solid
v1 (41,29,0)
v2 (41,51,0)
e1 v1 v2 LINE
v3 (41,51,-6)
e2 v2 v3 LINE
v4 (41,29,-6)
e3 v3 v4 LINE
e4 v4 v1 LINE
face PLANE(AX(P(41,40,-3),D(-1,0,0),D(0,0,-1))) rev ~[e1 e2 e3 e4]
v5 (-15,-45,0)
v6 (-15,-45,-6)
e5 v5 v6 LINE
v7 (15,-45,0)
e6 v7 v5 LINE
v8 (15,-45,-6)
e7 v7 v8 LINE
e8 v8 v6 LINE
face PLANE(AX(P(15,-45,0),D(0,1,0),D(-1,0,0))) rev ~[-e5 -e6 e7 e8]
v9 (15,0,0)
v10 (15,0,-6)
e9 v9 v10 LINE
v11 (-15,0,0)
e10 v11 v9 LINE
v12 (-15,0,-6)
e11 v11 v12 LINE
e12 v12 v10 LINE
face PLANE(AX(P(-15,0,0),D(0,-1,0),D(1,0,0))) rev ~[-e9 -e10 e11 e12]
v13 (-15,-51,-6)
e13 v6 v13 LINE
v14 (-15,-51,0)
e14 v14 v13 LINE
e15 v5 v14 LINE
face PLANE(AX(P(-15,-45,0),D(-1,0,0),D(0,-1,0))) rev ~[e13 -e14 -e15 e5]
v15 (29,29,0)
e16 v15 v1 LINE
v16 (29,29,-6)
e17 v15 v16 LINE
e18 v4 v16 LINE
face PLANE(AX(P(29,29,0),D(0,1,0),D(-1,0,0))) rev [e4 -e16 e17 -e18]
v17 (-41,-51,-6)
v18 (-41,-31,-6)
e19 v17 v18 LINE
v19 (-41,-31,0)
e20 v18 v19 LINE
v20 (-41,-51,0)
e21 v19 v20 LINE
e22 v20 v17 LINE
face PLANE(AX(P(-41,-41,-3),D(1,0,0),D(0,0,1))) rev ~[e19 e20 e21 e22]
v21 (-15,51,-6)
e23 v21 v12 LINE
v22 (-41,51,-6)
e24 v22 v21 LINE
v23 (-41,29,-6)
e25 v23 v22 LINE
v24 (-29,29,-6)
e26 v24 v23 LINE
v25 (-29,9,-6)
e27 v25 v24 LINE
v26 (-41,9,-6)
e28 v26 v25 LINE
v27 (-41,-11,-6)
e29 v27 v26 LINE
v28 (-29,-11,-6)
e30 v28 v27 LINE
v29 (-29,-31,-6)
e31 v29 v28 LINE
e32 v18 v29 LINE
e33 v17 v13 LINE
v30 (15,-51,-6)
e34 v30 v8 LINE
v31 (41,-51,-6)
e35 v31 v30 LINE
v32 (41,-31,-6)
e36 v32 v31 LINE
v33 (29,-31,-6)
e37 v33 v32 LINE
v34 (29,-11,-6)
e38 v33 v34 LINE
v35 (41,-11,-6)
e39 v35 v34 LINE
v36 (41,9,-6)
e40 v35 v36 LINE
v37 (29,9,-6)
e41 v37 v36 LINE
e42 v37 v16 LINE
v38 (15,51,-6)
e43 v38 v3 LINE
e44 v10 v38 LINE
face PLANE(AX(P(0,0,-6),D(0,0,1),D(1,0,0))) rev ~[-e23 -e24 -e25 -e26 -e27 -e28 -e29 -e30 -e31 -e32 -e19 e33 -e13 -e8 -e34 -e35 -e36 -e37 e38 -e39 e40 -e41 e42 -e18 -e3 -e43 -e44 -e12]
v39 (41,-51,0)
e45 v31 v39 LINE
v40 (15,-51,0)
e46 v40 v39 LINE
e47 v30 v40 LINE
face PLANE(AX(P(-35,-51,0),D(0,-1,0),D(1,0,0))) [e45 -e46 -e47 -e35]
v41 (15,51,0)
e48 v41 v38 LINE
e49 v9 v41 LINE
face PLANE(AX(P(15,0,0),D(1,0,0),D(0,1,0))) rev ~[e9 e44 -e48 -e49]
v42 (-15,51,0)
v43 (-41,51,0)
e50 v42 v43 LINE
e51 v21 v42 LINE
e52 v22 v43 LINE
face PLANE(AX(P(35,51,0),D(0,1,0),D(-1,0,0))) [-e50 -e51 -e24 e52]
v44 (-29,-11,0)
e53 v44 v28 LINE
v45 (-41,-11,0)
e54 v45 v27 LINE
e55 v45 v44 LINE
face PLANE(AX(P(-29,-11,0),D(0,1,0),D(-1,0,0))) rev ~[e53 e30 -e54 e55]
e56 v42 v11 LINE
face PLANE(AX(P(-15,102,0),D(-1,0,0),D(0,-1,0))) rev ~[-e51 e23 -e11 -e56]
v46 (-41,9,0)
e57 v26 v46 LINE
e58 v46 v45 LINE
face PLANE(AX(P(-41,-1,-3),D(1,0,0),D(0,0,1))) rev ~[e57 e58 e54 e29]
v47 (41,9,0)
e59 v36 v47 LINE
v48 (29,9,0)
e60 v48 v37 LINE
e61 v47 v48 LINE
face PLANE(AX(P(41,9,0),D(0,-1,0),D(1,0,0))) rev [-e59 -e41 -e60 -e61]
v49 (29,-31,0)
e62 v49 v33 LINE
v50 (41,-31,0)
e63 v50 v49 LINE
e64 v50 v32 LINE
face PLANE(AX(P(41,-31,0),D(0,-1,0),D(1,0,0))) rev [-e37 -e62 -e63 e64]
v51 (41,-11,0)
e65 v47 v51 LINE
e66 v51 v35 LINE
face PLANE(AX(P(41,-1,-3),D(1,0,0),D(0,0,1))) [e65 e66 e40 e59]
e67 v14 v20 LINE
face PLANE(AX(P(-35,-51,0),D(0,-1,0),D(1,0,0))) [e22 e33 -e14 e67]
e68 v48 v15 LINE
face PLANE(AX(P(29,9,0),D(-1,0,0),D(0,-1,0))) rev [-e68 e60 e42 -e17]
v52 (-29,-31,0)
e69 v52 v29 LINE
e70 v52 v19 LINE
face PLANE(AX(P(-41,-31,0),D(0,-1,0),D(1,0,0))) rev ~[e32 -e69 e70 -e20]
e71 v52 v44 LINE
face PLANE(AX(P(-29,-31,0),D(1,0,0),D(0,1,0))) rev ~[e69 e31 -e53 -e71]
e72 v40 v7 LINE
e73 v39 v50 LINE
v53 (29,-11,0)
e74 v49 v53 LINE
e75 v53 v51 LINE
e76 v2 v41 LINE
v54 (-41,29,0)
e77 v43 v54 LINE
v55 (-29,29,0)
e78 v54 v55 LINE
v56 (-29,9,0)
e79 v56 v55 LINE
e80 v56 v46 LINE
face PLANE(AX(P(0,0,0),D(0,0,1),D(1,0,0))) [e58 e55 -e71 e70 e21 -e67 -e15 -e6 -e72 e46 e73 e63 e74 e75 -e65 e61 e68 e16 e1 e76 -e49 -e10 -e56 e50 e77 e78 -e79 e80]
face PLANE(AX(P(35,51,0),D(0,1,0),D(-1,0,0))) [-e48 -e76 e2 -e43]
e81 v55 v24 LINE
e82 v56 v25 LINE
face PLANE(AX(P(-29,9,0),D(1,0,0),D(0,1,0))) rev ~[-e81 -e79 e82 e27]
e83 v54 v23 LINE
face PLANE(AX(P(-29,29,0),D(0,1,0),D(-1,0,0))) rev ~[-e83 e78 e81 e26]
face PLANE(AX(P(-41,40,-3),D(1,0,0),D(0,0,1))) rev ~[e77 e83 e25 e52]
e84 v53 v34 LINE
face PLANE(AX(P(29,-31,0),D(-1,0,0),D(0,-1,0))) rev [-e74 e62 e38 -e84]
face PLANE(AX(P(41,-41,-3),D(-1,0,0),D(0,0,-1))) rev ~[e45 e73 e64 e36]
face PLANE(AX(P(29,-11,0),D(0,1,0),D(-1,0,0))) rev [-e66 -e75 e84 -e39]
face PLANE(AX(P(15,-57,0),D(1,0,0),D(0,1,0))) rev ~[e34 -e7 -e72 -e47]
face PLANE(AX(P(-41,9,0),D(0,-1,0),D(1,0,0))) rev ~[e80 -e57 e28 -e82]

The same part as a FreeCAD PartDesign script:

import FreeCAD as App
import Part
import Sketcher

V = App.Vector

doc = App.newDocument("Part")
body = doc.addObject("PartDesign::Body", "Body")

# Sketch on XY plane
sketch1 = body.newObject("Sketcher::SketchObject", "Sketch")
sketch1.AttachmentSupport = (doc.getObject("XY_Plane"), [""])
sketch1.MapMode = "FlatFace"
sketch1.addGeometry([
    Part.LineSegment(V(-35, 51, 0), V(-35, -51, 0)),
    Part.LineSegment(V(-35, -51, 0), V(35, -51, 0)),
    Part.LineSegment(V(35, -51, 0), V(35, 51, 0)),
    Part.LineSegment(V(35, 51, 0), V(-35, 51, 0)),
], False)
sketch1.addConstraint([
    Sketcher.Constraint("Coincident", 0, 2, 1, 1),
    Sketcher.Constraint("Coincident", 1, 2, 2, 1),
    Sketcher.Constraint("Coincident", 2, 2, 3, 1),
    Sketcher.Constraint("Coincident", 3, 2, 0, 1),
    Sketcher.Constraint("Vertical", 0),
    Sketcher.Constraint("Horizontal", 1),
    Sketcher.Constraint("Vertical", 2),
    Sketcher.Constraint("Horizontal", 3),
    Sketcher.Constraint("Symmetric", 0, 2, 2, 2, -1, 1),
    Sketcher.Constraint("DistanceX", 0, 2, -1, 1, 35.0),
    Sketcher.Constraint("DistanceY", 0, 2, 0, 1, 102.0),
])
pad1 = body.newObject("PartDesign::Pad", "Pad")
pad1.Profile = sketch1
pad1.Length = 6
pad1.Reversed = True

# Sketch on XY plane
sketch2 = body.newObject("Sketcher::SketchObject", "Sketch001")
sketch2.AttachmentSupport = (doc.getObject("XY_Plane"), [""])
sketch2.MapMode = "FlatFace"
sketch2.addGeometry([
    Part.LineSegment(V(-15, 102, 0), V(-15, 0, 0)),
    Part.LineSegment(V(-15, 0, 0), V(15, 0, 0)),
    Part.LineSegment(V(15, 0, 0), V(15, 102, 0)),
    Part.LineSegment(V(15, 102, 0), V(-15, 102, 0)),
], False)
sketch2.addConstraint([
    Sketcher.Constraint("Coincident", 0, 2, 1, 1),
    Sketcher.Constraint("Coincident", 1, 2, 2, 1),
    Sketcher.Constraint("Coincident", 2, 2, 3, 1),
    Sketcher.Constraint("Coincident", 3, 2, 0, 1),
    Sketcher.Constraint("Vertical", 0),
    Sketcher.Constraint("Horizontal", 1),
    Sketcher.Constraint("Vertical", 2),
    Sketcher.Constraint("Horizontal", 3),
    Sketcher.Constraint("Symmetric", 0, 2, 1, 2, -1, 1),
    Sketcher.Constraint("DistanceX", 0, 2, -1, 1, 15.0),
    Sketcher.Constraint("DistanceY", 0, 2, 0, 1, 102.0),
])
pocket1 = body.newObject("PartDesign::Pocket", "Pocket")
pocket1.Profile = sketch2
pocket1.Type = "ThroughAll"

# Sketch on XY plane
sketch3 = body.newObject("Sketcher::SketchObject", "Sketch002")
sketch3.AttachmentSupport = (doc.getObject("XY_Plane"), [""])
sketch3.MapMode = "FlatFace"
sketch3.addGeometry([
    Part.LineSegment(V(-15, -45, 0), V(-15, -57, 0)),
    Part.LineSegment(V(-15, -57, 0), V(15, -57, 0)),
    Part.LineSegment(V(15, -57, 0), V(15, -45, 0)),
    Part.LineSegment(V(15, -45, 0), V(-15, -45, 0)),
], False)
sketch3.addConstraint([
    Sketcher.Constraint("Coincident", 0, 2, 1, 1),
    Sketcher.Constraint("Coincident", 1, 2, 2, 1),
    Sketcher.Constraint("Coincident", 2, 2, 3, 1),
    Sketcher.Constraint("Coincident", 3, 2, 0, 1),
    Sketcher.Constraint("Vertical", 0),
    Sketcher.Constraint("Horizontal", 1),
    Sketcher.Constraint("Vertical", 2),
    Sketcher.Constraint("Horizontal", 3),
    Sketcher.Constraint("DistanceX", 0, 2, -1, 1, 15.0),
    Sketcher.Constraint("DistanceX", -1, 1, 1, 2, 15.0),
    Sketcher.Constraint("DistanceY", 0, 2, 0, 1, 12.0),
    Sketcher.Constraint("DistanceY", 0, 2, -1, 1, 57.0),
])
pocket2 = body.newObject("PartDesign::Pocket", "Pocket001")
pocket2.Profile = sketch3
pocket2.Type = "ThroughAll"

# Sketch on XY plane
sketch4 = body.newObject("Sketcher::SketchObject", "Sketch003")
sketch4.AttachmentSupport = (doc.getObject("XY_Plane"), [""])
sketch4.MapMode = "FlatFace"
sketch4.addGeometry([
    Part.LineSegment(V(-41, -11, 0), V(-41, -31, 0)),
    Part.LineSegment(V(-41, -31, 0), V(-29, -31, 0)),
    Part.LineSegment(V(-29, -31, 0), V(-29, -11, 0)),
    Part.LineSegment(V(-29, -11, 0), V(-41, -11, 0)),
], False)
sketch4.addConstraint([
    Sketcher.Constraint("Coincident", 0, 2, 1, 1),
    Sketcher.Constraint("Coincident", 1, 2, 2, 1),
    Sketcher.Constraint("Coincident", 2, 2, 3, 1),
    Sketcher.Constraint("Coincident", 3, 2, 0, 1),
    Sketcher.Constraint("Vertical", 0),
    Sketcher.Constraint("Horizontal", 1),
    Sketcher.Constraint("Vertical", 2),
    Sketcher.Constraint("Horizontal", 3),
    Sketcher.Constraint("DistanceX", 0, 2, -1, 1, 41.0),
    Sketcher.Constraint("DistanceX", 1, 2, -1, 1, 29.0),
    Sketcher.Constraint("DistanceY", 0, 2, 0, 1, 20.0),
    Sketcher.Constraint("DistanceY", 0, 2, -1, 1, 31.0),
])
pocket3 = body.newObject("PartDesign::Pocket", "Pocket002")
pocket3.Profile = sketch4
pocket3.Type = "ThroughAll"

# Sketch on XY plane
sketch5 = body.newObject("Sketcher::SketchObject", "Sketch004")
sketch5.AttachmentSupport = (doc.getObject("XY_Plane"), [""])
sketch5.MapMode = "FlatFace"
sketch5.addGeometry([
    Part.LineSegment(V(-41, 29, 0), V(-41, 9, 0)),
    Part.LineSegment(V(-41, 9, 0), V(-29, 9, 0)),
    Part.LineSegment(V(-29, 9, 0), V(-29, 29, 0)),
    Part.LineSegment(V(-29, 29, 0), V(-41, 29, 0)),
], False)
sketch5.addConstraint([
    Sketcher.Constraint("Coincident", 0, 2, 1, 1),
    Sketcher.Constraint("Coincident", 1, 2, 2, 1),
    Sketcher.Constraint("Coincident", 2, 2, 3, 1),
    Sketcher.Constraint("Coincident", 3, 2, 0, 1),
    Sketcher.Constraint("Vertical", 0),
    Sketcher.Constraint("Horizontal", 1),
    Sketcher.Constraint("Vertical", 2),
    Sketcher.Constraint("Horizontal", 3),
    Sketcher.Constraint("DistanceX", 0, 2, -1, 1, 41.0),
    Sketcher.Constraint("DistanceX", 1, 2, -1, 1, 29.0),
    Sketcher.Constraint("DistanceY", -1, 1, 2, 2, 29.0),
    Sketcher.Constraint("DistanceY", 0, 2, 0, 1, 20.0),
])
pocket4 = body.newObject("PartDesign::Pocket", "Pocket003")
pocket4.Profile = sketch5
pocket4.Type = "ThroughAll"
doc.recompute()

mirrored = body.newObject("PartDesign::Mirrored", "Mirrored")
mirrored.Originals = [pocket4, pocket3]
mirrored.MirrorPlane = (doc.getObject("YZ_Plane"), [""])
body.Tip = mirrored

# Sketch on YZ plane
sketch6 = body.newObject("Sketcher::SketchObject", "Sketch005")
sketch6.AttachmentSupport = (doc.getObject("YZ_Plane"), [""])
sketch6.MapMode = "FlatFace"
sketch6.AttachmentOffset = App.Placement(V(0, 0, 35), App.Rotation())
sketch6.addGeometry([
    Part.LineSegment(V(51, -6, 0), V(51, 0, 0)),  # 0
    Part.LineSegment(V(51, 0, 0), V(29, 0, 0)),  # 1
    Part.LineSegment(V(29, 0, 0), V(29, -6, 0)),  # 2
    Part.LineSegment(V(29, -6, 0), V(51, -6, 0)),  # 3
    Part.LineSegment(V(-11, -6, 0), V(9, -6, 0)),  # 4
    Part.LineSegment(V(9, -6, 0), V(9, 0, 0)),  # 5
    Part.LineSegment(V(9, 0, 0), V(-11, 0, 0)),  # 6
    Part.LineSegment(V(-11, 0, 0), V(-11, -6, 0)),  # 7
], False)
sketch6.addConstraint([
    Sketcher.Constraint("Coincident", 0, 2, 1, 1),
    Sketcher.Constraint("Coincident", 1, 2, 2, 1),
    Sketcher.Constraint("Coincident", 2, 2, 3, 1),
    Sketcher.Constraint("Coincident", 3, 2, 0, 1),
    Sketcher.Constraint("Coincident", 4, 2, 5, 1),
    Sketcher.Constraint("Coincident", 5, 2, 6, 1),
    Sketcher.Constraint("Coincident", 6, 2, 7, 1),
    Sketcher.Constraint("Coincident", 7, 2, 4, 1),
    Sketcher.Constraint("Vertical", 0),
    Sketcher.Constraint("Horizontal", 1),
    Sketcher.Constraint("Vertical", 2),
    Sketcher.Constraint("Horizontal", 3),
    Sketcher.Constraint("Horizontal", 4),
    Sketcher.Constraint("Vertical", 5),
    Sketcher.Constraint("Horizontal", 6),
    Sketcher.Constraint("Vertical", 7),
    Sketcher.Constraint("PointOnObject", 0, 2, -1),
    Sketcher.Constraint("PointOnObject", 5, 2, -1),
    Sketcher.Constraint("Horizontal", 3, 2, 4, 2),
    Sketcher.Constraint("DistanceX", 1, 2, 1, 1, 22.0),
    Sketcher.Constraint("DistanceX", 4, 1, 4, 2, 20.0),
    Sketcher.Constraint("DistanceY", 0, 1, 0, 2, 6.0),
    Sketcher.Constraint("DistanceX", -1, 1, 0, 2, 51.0),
    Sketcher.Constraint("DistanceX", -1, 1, 4, 2, 9.0),
])
pad2 = body.newObject("PartDesign::Pad", "Pad001")
pad2.Profile = sketch6
pad2.Length = 6

# Sketch on YZ plane
sketch7 = body.newObject("Sketcher::SketchObject", "Sketch006")
sketch7.AttachmentSupport = (doc.getObject("YZ_Plane"), [""])
sketch7.MapMode = "FlatFace"
sketch7.AttachmentOffset = App.Placement(V(0, 0, 35), App.Rotation())
sketch7.addGeometry([
    Part.LineSegment(V(-31, -6, 0), V(-31, 0, 0)),
    Part.LineSegment(V(-31, 0, 0), V(-51, 0, 0)),
    Part.LineSegment(V(-51, 0, 0), V(-51, -6, 0)),
    Part.LineSegment(V(-51, -6, 0), V(-31, -6, 0)),
], False)
sketch7.addConstraint([
    Sketcher.Constraint("Coincident", 0, 2, 1, 1),
    Sketcher.Constraint("Coincident", 1, 2, 2, 1),
    Sketcher.Constraint("Coincident", 2, 2, 3, 1),
    Sketcher.Constraint("Coincident", 3, 2, 0, 1),
    Sketcher.Constraint("Vertical", 0),
    Sketcher.Constraint("Horizontal", 1),
    Sketcher.Constraint("Vertical", 2),
    Sketcher.Constraint("Horizontal", 3),
    Sketcher.Constraint("PointOnObject", 0, 2, -1),
    Sketcher.Constraint("DistanceX", 1, 2, 1, 1, 20.0),
    Sketcher.Constraint("DistanceY", 0, 1, 0, 2, 6.0),
    Sketcher.Constraint("DistanceX", 0, 2, -1, 1, 31.0),
])
pad3 = body.newObject("PartDesign::Pad", "Pad002")
pad3.Profile = sketch7
pad3.Length = 6

# Sketch on YZ plane
sketch8 = body.newObject("Sketcher::SketchObject", "Sketch007")
sketch8.AttachmentSupport = (doc.getObject("YZ_Plane"), [""])
sketch8.MapMode = "FlatFace"
sketch8.AttachmentOffset = App.Placement(V(0, 0, -35), App.Rotation())
sketch8.addGeometry([
    Part.LineSegment(V(51, 0, 0), V(51, -6, 0)),  # 0
    Part.LineSegment(V(51, -6, 0), V(29, -6, 0)),  # 1
    Part.LineSegment(V(29, -6, 0), V(29, 0, 0)),  # 2
    Part.LineSegment(V(29, 0, 0), V(51, 0, 0)),  # 3
    Part.LineSegment(V(9, 0, 0), V(9, -6, 0)),  # 4
    Part.LineSegment(V(9, -6, 0), V(-11, -6, 0)),  # 5
    Part.LineSegment(V(-11, -6, 0), V(-11, 0, 0)),  # 6
    Part.LineSegment(V(-11, 0, 0), V(9, 0, 0)),  # 7
    Part.LineSegment(V(-31, 0, 0), V(-31, -6, 0)),  # 8
    Part.LineSegment(V(-31, -6, 0), V(-51, -6, 0)),  # 9
    Part.LineSegment(V(-51, -6, 0), V(-51, 0, 0)),  # 10
    Part.LineSegment(V(-51, 0, 0), V(-31, 0, 0)),  # 11
], False)
sketch8.addConstraint([
    Sketcher.Constraint("Coincident", 0, 2, 1, 1),
    Sketcher.Constraint("Coincident", 1, 2, 2, 1),
    Sketcher.Constraint("Coincident", 2, 2, 3, 1),
    Sketcher.Constraint("Coincident", 3, 2, 0, 1),
    Sketcher.Constraint("Coincident", 4, 2, 5, 1),
    Sketcher.Constraint("Coincident", 5, 2, 6, 1),
    Sketcher.Constraint("Coincident", 6, 2, 7, 1),
    Sketcher.Constraint("Coincident", 7, 2, 4, 1),
    Sketcher.Constraint("Coincident", 8, 2, 9, 1),
    Sketcher.Constraint("Coincident", 9, 2, 10, 1),
    Sketcher.Constraint("Coincident", 10, 2, 11, 1),
    Sketcher.Constraint("Coincident", 11, 2, 8, 1),
    Sketcher.Constraint("Vertical", 0),
    Sketcher.Constraint("Horizontal", 1),
    Sketcher.Constraint("Vertical", 2),
    Sketcher.Constraint("Horizontal", 3),
    Sketcher.Constraint("Vertical", 4),
    Sketcher.Constraint("Horizontal", 5),
    Sketcher.Constraint("Vertical", 6),
    Sketcher.Constraint("Horizontal", 7),
    Sketcher.Constraint("Vertical", 8),
    Sketcher.Constraint("Horizontal", 9),
    Sketcher.Constraint("Vertical", 10),
    Sketcher.Constraint("Horizontal", 11),
    Sketcher.Constraint("Symmetric", 3, 2, 10, 2, -1, 1),
    Sketcher.Constraint("PointOnObject", 2, 2, -1),
    Sketcher.Constraint("PointOnObject", 6, 2, -1),
    Sketcher.Constraint("Horizontal", 1, 2, 4, 2),
    Sketcher.Constraint("Horizontal", 5, 2, 8, 2),
    Sketcher.Constraint("Equal", 7, 9),
    Sketcher.Constraint("DistanceX", 1, 2, 1, 1, 22.0),
    Sketcher.Constraint("DistanceX", 5, 2, 5, 1, 20.0),
    Sketcher.Constraint("DistanceY", 0, 2, 0, 1, 6.0),
    Sketcher.Constraint("DistanceX", -1, 1, 0, 2, 51.0),
    Sketcher.Constraint("DistanceX", -1, 1, 4, 2, 9.0),
])
pad4 = body.newObject("PartDesign::Pad", "Pad003")
pad4.Profile = sketch8
pad4.Length = 6
pad4.Reversed = True

doc.recompute()
